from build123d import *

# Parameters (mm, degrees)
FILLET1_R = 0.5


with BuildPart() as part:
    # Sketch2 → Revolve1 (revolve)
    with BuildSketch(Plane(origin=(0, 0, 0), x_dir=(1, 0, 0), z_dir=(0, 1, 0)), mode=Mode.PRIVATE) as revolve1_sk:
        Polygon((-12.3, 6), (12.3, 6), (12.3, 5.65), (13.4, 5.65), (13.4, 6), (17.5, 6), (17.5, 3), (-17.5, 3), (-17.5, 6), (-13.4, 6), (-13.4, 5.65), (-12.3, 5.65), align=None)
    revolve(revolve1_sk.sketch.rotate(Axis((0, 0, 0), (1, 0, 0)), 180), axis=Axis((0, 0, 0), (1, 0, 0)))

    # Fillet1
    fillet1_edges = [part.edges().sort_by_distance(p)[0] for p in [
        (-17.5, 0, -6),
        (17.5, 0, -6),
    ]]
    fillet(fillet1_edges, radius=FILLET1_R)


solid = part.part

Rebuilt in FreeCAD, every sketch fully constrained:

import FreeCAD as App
import Part
import Sketcher


def edges_at(feature, points):
    """Names of the edges that pass closest to the given points."""
    edges = feature.Shape.Edges
    near = lambda p: min(range(len(edges)), key=lambda i: edges[i].distToShape(Part.Vertex(*p))[0])
    return sorted({f"Edge{near(p) + 1}" for p in points})

doc = App.newDocument("Part")
body = doc.addObject("PartDesign::Body", "Body")

sketch1 = body.newObject("Sketcher::SketchObject", "Sketch")
sketch1.AttachmentSupport = (doc.getObject("XZ_Plane"), [""])
sketch1.MapMode = "FlatFace"
sketch1.addGeometry([
    Part.LineSegment(App.Vector(12.3, -6, 0), App.Vector(-12.3, -6, 0)),
    Part.LineSegment(App.Vector(-12.3, -6, 0), App.Vector(-12.3, -5.65, 0)),
    Part.LineSegment(App.Vector(-12.3, -5.65, 0), App.Vector(-13.4, -5.65, 0)),
    Part.LineSegment(App.Vector(-13.4, -5.65, 0), App.Vector(-13.4, -6, 0)),
    Part.LineSegment(App.Vector(-13.4, -6, 0), App.Vector(-17.5, -6, 0)),
    Part.LineSegment(App.Vector(-17.5, -6, 0), App.Vector(-17.5, -3, 0)),
    Part.LineSegment(App.Vector(-17.5, -3, 0), App.Vector(17.5, -3, 0)),
    Part.LineSegment(App.Vector(17.5, -3, 0), App.Vector(17.5, -6, 0)),
    Part.LineSegment(App.Vector(17.5, -6, 0), App.Vector(13.4, -6, 0)),
    Part.LineSegment(App.Vector(13.4, -6, 0), App.Vector(13.4, -5.65, 0)),
    Part.LineSegment(App.Vector(13.4, -5.65, 0), App.Vector(12.3, -5.65, 0)),
    Part.LineSegment(App.Vector(12.3, -5.65, 0), App.Vector(12.3, -6, 0)),
], False)
sketch1.addConstraint([
    Sketcher.Constraint("Coincident", 0, 2, 1, 1),
    Sketcher.Constraint("Coincident", 1, 2, 2, 1),
    Sketcher.Constraint("Coincident", 2, 2, 3, 1),
    Sketcher.Constraint("Coincident", 3, 2, 4, 1),
    Sketcher.Constraint("Coincident", 4, 2, 5, 1),
    Sketcher.Constraint("Coincident", 5, 2, 6, 1),
    Sketcher.Constraint("Coincident", 6, 2, 7, 1),
    Sketcher.Constraint("Coincident", 7, 2, 8, 1),
    Sketcher.Constraint("Coincident", 8, 2, 9, 1),
    Sketcher.Constraint("Coincident", 9, 2, 10, 1),
    Sketcher.Constraint("Coincident", 10, 2, 11, 1),
    Sketcher.Constraint("Coincident", 11, 2, 0, 1),
    Sketcher.Constraint("Horizontal", 0),
    Sketcher.Constraint("Vertical", 1),
    Sketcher.Constraint("Horizontal", 2),
    Sketcher.Constraint("Vertical", 3),
    Sketcher.Constraint("Horizontal", 4),
    Sketcher.Constraint("Vertical", 5),
    Sketcher.Constraint("Horizontal", 6),
    Sketcher.Constraint("Vertical", 7),
    Sketcher.Constraint("Horizontal", 8),
    Sketcher.Constraint("Vertical", 9),
    Sketcher.Constraint("Horizontal", 10),
    Sketcher.Constraint("Vertical", 11),
    Sketcher.Constraint("Symmetric", 4, 2, 7, 2, -2),
    Sketcher.Constraint("Symmetric", 2, 2, 9, 2, -2),
    Sketcher.Constraint("Horizontal", 0, 2, 3, 2),
    Sketcher.Constraint("Equal", 2, 10),
    Sketcher.Constraint("DistanceX", 6, 1, 6, 2, 35.0),
    Sketcher.Constraint("DistanceY", 5, 1, 5, 2, 3.0),
    Sketcher.Constraint("DistanceX", 0, 2, 0, 1, 24.6),
    Sketcher.Constraint("DistanceX", 2, 2, 2, 1, 1.1),
    Sketcher.Constraint("DistanceY", 0, 2, -1, 1, 6.0),
    Sketcher.Constraint("DistanceY", 1, 1, 1, 2, 0.35),
])
revolution = body.newObject("PartDesign::Revolution", "Revolution")
revolution.Profile = sketch1
revolution.ReferenceAxis = (sketch1, ["H_Axis"])
revolution.Angle = 360
doc.recompute()

fillet = body.newObject("PartDesign::Fillet", "Fillet")
fillet.Base = (revolution, edges_at(revolution, [(-17.5, 0, -6), (17.5, 0, -6)]))
fillet.Radius = 0.5

doc.recompute()
